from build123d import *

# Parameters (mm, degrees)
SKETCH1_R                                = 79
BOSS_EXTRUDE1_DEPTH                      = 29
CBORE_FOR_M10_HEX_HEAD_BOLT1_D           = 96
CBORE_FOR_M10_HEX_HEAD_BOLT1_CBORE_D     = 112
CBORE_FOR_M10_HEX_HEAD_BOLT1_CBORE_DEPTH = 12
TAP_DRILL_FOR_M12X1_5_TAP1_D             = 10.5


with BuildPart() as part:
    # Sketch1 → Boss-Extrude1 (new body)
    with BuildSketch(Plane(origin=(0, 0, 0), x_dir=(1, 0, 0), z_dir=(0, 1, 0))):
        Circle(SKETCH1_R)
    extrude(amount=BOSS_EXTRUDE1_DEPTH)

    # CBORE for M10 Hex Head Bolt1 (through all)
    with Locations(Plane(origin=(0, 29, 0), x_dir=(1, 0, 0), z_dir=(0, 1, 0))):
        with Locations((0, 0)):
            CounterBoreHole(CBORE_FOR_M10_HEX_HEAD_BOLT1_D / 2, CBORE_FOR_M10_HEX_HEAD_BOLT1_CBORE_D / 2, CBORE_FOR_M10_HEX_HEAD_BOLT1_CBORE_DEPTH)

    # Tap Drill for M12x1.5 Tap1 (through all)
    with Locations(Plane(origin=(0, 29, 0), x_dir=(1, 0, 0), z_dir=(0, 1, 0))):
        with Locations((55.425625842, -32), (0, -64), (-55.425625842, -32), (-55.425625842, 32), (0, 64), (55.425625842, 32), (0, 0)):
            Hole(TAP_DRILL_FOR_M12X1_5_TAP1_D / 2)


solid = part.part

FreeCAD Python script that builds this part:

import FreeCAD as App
import Part
import Sketcher
from FreeCAD import Vector
Q = App.Units.Quantity

doc = App.newDocument("Part")
body = doc.addObject("PartDesign::Body", "Body")

sketch1 = body.newObject("Sketcher::SketchObject", "Sketch")
sketch1.AttachmentSupport = (doc.getObject("XZ_Plane"), [""])
sketch1.MapMode = "FlatFace"
sketch1.addGeometry(Part.Circle(Vector(0, 0, 0), Vector(0, 0, 1), 79), False)
sketch1.addConstraint(Sketcher.Constraint("Coincident", 0, 3, -1, 1))
sketch1.addConstraint(Sketcher.Constraint("Diameter", 0, Q("158 mm")))
pad1 = body.newObject("PartDesign::Pad", "Pad")
pad1.Profile = sketch1
pad1.Length = 29
pad1.Reversed = True

sketch2 = body.newObject("Sketcher::SketchObject", "Sketch001")
sketch2.AttachmentSupport = (doc.getObject("XZ_Plane"), [""])
sketch2.MapMode = "FlatFace"
sketch2.AttachmentOffset = App.Placement(Vector(0, 0, -29), App.Rotation())
sketch2.addGeometry(Part.Circle(Vector(0, 0, 0), Vector(0, 0, 1), 48), False)
sketch2.addConstraint(Sketcher.Constraint("Coincident", 0, 3, -1, 1))
sketch2.addConstraint(Sketcher.Constraint("Diameter", 0, Q("96 mm")))
doc.recompute()
hole = body.newObject("PartDesign::Hole", "Hole")
hole.Profile = sketch2
hole.ThreadType = "None"
hole.Diameter = 96
hole.DepthType = "ThroughAll"
hole.HoleCutType = "Counterbore"
hole.HoleCutDiameter = 112
hole.HoleCutDepth = 12
hole.Reversed = True

sketch3 = body.newObject("Sketcher::SketchObject", "Sketch002")
sketch3.AttachmentSupport = (doc.getObject("XZ_Plane"), [""])
sketch3.MapMode = "FlatFace"
sketch3.AttachmentOffset = App.Placement(Vector(0, 0, -29), App.Rotation())
sketch3.addGeometry(Part.Circle(Vector(55, 32, 0), Vector(0, 0, 1), 5), False)
sketch3.addGeometry(Part.Circle(Vector(0, 64, 0), Vector(0, 0, 1), 5), False)
sketch3.addGeometry(Part.Circle(Vector(-55, 32, 0), Vector(0, 0, 1), 5), False)
sketch3.addGeometry(Part.Circle(Vector(-55, -32, 0), Vector(0, 0, 1), 5), False)
sketch3.addGeometry(Part.Circle(Vector(0, -64, 0), Vector(0, 0, 1), 5), False)
sketch3.addGeometry(Part.Circle(Vector(55, -32, 0), Vector(0, 0, 1), 5), False)
sketch3.addGeometry(Part.Circle(Vector(0, 0, 0), Vector(0, 0, 1), 5), False)
sketch3.addConstraint(Sketcher.Constraint("Coincident", 6, 3, -1, 1))
sketch3.addConstraint(Sketcher.Constraint("Equal", 0, 1))
sketch3.addConstraint(Sketcher.Constraint("Equal", 1, 2))
sketch3.addConstraint(Sketcher.Constraint("Equal", 2, 3))
sketch3.addConstraint(Sketcher.Constraint("Equal", 3, 4))
sketch3.addConstraint(Sketcher.Constraint("Equal", 4, 5))
sketch3.addConstraint(Sketcher.Constraint("Equal", 5, 6))
sketch3.addConstraint(Sketcher.Constraint("Symmetric", 0, 3, 3, 3, -1, 1))
sketch3.addConstraint(Sketcher.Constraint("Symmetric", 1, 3, 4, 3, -1, 1))
sketch3.addConstraint(Sketcher.Constraint("Symmetric", 2, 3, 5, 3, -1, 1))
sketch3.addConstraint(Sketcher.Constraint("Symmetric", 0, 3, 2, 3, -2))
sketch3.addConstraint(Sketcher.Constraint("PointOnObject", 1, 3, -2))
sketch3.addConstraint(Sketcher.Constraint("Diameter", 0, Q("10.5 mm")))
sketch3.addConstraint(Sketcher.Constraint("DistanceY", -1, 1, 0, 3, Q("32 mm")))
sketch3.addConstraint(Sketcher.Constraint("DistanceY", -1, 1, 1, 3, Q("64 mm")))
sketch3.addConstraint(Sketcher.Constraint("DistanceX", 2, 3, 0, 3, Q("110.851252 mm")))
doc.recompute()
hole2 = body.newObject("PartDesign::Hole", "Hole001")
hole2.Profile = sketch3
hole2.ThreadType = "None"
hole2.Diameter = 10.5
hole2.DepthType = "ThroughAll"
hole2.Reversed = True

doc.recompute()
